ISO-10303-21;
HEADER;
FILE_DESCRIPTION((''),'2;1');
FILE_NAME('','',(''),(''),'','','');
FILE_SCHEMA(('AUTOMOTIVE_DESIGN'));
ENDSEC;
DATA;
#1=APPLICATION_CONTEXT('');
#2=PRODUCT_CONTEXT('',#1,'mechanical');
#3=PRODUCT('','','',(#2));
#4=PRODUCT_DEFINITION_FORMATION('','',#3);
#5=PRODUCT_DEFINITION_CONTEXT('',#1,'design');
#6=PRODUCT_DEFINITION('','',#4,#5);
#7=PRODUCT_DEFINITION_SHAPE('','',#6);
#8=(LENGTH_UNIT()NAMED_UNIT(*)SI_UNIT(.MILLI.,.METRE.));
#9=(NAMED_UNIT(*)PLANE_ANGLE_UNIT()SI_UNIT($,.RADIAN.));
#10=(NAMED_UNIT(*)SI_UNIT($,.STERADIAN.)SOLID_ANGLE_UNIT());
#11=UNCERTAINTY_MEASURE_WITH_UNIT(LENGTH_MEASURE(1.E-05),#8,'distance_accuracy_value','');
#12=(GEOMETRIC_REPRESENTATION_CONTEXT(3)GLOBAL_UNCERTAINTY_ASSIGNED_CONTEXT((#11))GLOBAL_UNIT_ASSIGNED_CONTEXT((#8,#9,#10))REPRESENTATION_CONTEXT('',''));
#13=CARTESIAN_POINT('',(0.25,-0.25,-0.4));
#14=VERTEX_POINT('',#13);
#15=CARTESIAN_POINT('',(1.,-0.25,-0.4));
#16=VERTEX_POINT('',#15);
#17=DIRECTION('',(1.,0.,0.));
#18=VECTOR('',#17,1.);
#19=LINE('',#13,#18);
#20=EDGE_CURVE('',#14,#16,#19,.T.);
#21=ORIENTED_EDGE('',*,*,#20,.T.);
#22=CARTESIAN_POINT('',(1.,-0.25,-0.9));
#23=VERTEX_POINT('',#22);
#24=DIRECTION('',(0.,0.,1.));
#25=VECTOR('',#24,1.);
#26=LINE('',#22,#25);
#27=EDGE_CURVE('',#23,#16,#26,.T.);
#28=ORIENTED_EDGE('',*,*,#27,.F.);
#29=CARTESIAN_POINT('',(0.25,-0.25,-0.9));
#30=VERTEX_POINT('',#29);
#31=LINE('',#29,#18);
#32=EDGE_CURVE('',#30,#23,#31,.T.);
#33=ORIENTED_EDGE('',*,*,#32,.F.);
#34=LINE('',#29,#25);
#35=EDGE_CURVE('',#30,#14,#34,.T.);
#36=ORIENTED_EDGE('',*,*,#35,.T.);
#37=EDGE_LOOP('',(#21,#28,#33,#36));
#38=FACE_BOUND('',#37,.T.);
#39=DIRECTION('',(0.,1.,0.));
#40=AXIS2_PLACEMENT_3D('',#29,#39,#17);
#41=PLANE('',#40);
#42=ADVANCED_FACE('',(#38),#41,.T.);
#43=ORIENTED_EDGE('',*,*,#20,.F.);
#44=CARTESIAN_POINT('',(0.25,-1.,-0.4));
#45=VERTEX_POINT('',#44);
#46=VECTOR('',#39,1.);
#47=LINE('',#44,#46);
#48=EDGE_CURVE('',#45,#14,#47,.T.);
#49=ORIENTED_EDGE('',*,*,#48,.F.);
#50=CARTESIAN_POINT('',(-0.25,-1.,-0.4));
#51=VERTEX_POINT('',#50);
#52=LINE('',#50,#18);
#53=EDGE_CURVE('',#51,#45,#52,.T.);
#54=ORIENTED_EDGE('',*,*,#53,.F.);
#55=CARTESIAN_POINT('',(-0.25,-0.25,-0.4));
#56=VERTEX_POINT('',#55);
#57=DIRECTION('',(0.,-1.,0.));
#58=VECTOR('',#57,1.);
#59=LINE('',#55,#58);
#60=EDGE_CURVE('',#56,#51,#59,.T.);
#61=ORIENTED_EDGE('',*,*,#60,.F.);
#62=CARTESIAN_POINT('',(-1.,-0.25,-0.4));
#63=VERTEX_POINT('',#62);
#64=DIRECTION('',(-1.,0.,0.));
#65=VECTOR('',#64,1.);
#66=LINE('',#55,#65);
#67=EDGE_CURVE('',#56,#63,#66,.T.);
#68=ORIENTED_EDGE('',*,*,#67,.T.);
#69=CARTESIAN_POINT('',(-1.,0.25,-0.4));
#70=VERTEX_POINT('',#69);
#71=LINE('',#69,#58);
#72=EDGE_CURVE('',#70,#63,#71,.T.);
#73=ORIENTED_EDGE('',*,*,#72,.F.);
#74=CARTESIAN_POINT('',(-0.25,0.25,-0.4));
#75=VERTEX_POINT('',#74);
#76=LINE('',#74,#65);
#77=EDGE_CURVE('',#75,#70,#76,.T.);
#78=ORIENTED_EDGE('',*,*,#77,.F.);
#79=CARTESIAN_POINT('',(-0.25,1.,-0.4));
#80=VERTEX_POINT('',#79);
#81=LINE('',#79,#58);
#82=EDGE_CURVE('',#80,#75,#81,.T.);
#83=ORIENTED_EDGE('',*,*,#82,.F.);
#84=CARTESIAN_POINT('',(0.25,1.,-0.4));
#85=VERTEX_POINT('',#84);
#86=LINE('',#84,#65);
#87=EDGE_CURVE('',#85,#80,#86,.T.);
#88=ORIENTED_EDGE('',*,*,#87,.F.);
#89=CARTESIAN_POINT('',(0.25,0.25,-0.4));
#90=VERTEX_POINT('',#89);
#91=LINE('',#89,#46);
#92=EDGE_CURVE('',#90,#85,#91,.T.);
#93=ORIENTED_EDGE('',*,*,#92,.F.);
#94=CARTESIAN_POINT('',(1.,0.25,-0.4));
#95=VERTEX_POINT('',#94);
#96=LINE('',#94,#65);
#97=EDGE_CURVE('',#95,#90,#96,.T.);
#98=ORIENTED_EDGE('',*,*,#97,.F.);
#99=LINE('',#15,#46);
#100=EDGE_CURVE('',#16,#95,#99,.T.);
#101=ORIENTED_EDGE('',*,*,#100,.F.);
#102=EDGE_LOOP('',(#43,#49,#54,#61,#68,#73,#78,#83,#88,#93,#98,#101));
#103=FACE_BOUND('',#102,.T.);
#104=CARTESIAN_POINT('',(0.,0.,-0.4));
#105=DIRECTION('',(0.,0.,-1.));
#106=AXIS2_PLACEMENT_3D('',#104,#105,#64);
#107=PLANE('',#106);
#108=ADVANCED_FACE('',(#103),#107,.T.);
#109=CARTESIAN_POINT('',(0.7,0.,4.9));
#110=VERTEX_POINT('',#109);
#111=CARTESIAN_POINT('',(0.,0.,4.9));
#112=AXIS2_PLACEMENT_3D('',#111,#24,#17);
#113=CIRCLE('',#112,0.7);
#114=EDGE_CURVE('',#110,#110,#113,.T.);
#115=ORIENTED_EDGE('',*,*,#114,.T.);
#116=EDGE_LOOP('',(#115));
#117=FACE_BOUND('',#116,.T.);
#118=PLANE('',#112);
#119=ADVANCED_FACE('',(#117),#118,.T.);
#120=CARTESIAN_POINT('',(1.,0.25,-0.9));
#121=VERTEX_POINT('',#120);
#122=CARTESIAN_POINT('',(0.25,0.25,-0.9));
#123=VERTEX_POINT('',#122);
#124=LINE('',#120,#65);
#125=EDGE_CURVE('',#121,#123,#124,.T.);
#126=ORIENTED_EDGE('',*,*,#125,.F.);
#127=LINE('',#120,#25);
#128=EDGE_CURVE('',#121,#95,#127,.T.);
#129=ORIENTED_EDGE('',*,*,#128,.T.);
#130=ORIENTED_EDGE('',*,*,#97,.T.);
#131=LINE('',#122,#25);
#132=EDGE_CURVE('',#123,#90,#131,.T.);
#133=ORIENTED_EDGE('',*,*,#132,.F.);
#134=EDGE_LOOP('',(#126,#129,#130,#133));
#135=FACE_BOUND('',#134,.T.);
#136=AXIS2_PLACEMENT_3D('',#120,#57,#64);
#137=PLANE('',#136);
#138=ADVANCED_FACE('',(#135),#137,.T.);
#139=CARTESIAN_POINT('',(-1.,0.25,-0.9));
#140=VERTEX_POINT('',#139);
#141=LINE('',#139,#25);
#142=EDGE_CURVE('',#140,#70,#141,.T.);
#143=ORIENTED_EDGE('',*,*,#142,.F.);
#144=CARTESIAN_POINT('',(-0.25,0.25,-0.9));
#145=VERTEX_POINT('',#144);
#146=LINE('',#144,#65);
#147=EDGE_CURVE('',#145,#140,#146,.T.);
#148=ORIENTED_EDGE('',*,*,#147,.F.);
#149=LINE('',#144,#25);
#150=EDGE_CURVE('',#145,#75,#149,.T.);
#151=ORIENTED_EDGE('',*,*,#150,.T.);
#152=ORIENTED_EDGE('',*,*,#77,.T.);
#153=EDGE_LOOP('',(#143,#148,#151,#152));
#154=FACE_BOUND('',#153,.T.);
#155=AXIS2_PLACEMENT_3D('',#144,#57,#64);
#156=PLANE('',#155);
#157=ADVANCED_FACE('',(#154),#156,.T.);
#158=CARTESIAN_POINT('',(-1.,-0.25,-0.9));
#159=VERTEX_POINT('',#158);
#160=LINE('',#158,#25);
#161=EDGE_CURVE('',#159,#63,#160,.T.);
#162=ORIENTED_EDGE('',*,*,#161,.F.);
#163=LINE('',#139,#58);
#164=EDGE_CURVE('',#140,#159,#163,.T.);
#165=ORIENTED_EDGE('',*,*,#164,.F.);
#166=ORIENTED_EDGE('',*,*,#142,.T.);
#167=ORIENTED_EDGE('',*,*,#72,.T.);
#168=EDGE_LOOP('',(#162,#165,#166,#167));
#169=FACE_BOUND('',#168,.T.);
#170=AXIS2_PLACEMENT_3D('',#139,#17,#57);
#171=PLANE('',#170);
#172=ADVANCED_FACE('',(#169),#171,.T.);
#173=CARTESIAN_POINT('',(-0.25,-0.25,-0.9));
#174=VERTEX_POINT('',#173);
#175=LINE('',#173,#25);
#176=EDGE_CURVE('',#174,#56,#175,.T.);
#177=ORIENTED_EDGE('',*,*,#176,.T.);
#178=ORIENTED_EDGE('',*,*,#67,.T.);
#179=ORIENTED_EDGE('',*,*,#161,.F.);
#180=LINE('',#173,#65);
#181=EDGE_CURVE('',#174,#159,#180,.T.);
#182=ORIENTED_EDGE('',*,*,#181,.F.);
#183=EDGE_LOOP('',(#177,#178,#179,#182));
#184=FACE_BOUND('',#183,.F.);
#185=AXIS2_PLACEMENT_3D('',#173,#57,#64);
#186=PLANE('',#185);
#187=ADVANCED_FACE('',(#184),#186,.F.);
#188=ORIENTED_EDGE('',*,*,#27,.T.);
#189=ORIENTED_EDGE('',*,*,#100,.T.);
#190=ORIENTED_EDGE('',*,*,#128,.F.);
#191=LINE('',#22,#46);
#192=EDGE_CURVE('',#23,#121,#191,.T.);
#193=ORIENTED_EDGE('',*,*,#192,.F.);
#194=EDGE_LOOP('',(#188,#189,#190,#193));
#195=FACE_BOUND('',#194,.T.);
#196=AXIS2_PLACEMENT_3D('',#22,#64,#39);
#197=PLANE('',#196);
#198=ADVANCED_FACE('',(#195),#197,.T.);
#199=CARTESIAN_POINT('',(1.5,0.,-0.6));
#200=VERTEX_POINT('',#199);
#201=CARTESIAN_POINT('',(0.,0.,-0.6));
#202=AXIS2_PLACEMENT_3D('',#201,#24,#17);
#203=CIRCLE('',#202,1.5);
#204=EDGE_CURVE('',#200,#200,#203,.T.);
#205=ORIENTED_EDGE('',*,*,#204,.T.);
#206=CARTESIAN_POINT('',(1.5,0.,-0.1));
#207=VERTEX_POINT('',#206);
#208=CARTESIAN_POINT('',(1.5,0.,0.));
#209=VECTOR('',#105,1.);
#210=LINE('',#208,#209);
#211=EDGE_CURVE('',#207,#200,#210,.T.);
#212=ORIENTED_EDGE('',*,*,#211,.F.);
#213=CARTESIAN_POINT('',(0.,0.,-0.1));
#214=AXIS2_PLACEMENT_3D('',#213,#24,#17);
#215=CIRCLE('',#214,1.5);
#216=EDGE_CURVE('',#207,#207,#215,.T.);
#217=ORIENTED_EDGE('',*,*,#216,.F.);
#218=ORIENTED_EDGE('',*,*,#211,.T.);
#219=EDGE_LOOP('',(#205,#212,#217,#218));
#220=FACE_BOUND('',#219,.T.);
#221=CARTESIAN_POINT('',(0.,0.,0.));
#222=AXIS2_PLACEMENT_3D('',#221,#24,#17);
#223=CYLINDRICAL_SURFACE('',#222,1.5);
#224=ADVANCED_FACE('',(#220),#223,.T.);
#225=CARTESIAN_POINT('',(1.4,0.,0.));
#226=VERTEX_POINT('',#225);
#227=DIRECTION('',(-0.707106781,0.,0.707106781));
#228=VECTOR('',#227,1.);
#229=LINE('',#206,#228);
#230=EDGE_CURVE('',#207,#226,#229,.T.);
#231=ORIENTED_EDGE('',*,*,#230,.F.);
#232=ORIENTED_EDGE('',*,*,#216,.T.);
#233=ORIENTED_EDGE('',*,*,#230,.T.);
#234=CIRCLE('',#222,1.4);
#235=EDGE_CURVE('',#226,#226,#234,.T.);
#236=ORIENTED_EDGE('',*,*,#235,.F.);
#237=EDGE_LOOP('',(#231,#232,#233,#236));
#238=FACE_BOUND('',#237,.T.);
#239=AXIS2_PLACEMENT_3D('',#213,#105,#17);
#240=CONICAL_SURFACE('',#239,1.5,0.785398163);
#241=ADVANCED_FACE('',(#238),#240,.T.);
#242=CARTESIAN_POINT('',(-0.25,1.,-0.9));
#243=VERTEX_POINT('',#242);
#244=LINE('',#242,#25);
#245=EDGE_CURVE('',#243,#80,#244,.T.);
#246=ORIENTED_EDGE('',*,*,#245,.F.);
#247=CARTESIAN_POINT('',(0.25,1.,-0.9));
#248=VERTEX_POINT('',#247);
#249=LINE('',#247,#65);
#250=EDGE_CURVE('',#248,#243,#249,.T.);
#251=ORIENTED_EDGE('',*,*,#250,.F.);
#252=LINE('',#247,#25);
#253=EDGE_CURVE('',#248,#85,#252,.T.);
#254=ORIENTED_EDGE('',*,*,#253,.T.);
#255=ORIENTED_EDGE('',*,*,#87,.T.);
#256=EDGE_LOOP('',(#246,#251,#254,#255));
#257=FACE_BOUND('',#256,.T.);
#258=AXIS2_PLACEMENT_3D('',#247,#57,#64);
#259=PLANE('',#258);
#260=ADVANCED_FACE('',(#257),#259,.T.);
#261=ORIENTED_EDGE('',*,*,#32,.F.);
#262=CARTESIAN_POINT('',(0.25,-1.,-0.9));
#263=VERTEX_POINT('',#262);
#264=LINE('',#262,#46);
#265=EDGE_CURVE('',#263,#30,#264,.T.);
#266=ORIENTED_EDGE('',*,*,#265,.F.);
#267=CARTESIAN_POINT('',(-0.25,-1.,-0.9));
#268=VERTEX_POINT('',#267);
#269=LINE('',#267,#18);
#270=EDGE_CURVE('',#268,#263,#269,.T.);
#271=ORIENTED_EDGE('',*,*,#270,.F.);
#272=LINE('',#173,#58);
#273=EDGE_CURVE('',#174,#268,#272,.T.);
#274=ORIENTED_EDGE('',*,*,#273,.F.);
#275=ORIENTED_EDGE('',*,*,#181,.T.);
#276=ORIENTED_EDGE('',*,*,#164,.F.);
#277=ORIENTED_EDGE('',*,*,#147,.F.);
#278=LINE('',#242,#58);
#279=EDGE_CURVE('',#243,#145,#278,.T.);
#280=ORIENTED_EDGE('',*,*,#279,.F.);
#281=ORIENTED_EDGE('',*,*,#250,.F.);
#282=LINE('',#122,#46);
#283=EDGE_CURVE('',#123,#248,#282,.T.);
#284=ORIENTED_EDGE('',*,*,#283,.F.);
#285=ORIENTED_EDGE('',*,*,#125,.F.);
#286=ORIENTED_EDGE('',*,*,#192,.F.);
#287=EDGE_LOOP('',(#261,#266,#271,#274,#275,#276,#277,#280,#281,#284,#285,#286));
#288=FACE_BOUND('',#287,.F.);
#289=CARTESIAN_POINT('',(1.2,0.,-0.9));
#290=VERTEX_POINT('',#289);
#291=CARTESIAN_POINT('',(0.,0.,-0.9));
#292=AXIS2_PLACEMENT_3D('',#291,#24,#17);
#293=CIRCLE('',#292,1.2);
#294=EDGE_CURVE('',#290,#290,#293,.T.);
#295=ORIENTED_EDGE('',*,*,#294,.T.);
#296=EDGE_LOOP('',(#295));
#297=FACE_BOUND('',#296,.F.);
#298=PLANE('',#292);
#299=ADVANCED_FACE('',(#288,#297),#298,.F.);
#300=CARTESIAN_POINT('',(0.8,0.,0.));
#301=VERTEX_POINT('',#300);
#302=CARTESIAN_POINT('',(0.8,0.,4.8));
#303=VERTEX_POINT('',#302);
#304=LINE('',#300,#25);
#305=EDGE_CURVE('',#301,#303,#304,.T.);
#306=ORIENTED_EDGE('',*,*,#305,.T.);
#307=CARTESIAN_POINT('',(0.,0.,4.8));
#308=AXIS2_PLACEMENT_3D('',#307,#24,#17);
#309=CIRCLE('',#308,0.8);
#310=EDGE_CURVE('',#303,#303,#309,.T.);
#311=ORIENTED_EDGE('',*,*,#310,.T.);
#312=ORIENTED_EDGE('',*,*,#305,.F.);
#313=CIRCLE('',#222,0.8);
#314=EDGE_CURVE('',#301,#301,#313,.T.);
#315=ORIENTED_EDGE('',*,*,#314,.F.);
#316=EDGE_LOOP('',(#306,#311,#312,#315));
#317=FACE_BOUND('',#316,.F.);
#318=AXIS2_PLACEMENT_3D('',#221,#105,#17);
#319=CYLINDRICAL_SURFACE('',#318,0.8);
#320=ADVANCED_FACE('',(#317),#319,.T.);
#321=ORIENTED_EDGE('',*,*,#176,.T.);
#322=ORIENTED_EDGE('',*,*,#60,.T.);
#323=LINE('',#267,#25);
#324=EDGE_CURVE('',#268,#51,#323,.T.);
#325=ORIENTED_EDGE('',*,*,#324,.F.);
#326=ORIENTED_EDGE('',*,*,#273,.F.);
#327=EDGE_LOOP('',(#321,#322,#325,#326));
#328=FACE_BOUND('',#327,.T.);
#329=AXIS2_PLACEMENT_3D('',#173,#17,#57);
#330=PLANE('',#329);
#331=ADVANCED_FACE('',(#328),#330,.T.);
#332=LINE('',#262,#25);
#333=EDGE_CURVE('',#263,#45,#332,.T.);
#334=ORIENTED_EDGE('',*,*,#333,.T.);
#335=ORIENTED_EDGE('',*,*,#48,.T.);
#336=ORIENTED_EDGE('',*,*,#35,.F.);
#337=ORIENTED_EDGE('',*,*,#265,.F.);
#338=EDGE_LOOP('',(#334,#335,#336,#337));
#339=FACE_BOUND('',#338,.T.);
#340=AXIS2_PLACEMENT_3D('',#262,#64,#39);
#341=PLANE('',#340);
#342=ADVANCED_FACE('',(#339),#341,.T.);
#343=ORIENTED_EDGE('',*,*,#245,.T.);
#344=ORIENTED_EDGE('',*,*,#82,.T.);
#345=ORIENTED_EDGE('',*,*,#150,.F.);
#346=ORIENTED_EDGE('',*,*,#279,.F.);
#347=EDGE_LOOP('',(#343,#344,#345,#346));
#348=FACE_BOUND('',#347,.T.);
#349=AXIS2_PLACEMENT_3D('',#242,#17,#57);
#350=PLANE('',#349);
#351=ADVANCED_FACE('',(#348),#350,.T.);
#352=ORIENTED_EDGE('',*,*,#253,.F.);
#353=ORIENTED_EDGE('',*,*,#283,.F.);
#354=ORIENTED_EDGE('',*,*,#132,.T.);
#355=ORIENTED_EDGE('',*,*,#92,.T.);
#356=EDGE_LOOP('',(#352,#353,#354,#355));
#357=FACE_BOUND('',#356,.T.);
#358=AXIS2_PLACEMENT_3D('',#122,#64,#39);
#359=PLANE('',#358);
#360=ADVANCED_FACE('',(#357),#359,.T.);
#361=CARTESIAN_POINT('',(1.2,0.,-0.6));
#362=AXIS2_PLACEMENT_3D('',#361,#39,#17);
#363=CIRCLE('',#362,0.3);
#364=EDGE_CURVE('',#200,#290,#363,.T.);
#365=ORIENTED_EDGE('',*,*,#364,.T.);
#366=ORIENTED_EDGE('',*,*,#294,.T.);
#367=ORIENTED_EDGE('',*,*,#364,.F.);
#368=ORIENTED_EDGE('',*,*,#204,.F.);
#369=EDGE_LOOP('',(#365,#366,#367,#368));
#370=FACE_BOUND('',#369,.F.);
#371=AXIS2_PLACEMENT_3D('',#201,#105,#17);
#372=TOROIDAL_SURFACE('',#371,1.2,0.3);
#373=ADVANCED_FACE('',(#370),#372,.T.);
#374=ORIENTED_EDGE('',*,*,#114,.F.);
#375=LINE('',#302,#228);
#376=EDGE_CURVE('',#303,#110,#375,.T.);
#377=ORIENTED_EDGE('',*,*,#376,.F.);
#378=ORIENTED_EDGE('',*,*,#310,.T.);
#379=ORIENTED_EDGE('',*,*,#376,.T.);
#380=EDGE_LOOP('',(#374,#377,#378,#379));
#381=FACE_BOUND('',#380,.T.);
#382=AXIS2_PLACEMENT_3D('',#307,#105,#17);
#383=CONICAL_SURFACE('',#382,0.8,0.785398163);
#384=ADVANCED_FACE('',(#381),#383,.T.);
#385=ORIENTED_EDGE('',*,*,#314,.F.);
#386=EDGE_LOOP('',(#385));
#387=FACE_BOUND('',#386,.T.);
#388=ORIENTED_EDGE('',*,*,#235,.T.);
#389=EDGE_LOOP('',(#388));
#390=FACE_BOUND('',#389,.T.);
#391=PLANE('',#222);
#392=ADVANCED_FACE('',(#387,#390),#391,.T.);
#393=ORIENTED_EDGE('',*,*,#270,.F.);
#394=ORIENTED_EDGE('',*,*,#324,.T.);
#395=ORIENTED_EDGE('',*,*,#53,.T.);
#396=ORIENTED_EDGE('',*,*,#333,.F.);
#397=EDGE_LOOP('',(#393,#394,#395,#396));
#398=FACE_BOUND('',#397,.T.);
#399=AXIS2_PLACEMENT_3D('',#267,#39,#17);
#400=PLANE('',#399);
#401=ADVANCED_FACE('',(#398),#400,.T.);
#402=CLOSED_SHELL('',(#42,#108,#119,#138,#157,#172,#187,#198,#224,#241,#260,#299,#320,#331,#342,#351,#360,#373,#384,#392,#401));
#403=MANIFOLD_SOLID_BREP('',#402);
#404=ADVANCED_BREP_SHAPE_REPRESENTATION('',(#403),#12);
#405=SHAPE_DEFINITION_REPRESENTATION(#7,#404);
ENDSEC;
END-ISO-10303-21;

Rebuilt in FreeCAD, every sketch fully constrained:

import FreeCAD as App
import Part
import Sketcher
from FreeCAD import Vector


def edges_at(feature, points):
    """Names of the edges that pass closest to the given points."""
    edges = feature.Shape.Edges
    near = lambda p: min(range(len(edges)), key=lambda i: edges[i].distToShape(Part.Vertex(*p))[0])
    return sorted({f"Edge{near(p) + 1}" for p in points})

doc = App.newDocument("Part")
params = doc.addObject("Spreadsheet::Sheet", "Params")
for row, (alias, value) in enumerate([
    ("sketch1_diameter", "3 mm"),
    ("pad1_length", "0.9 mm"),
    ("sketch2_diameter", "1.6 mm"),
    ("pad2_length", "4.9 mm"),
    ("fillet_radius", "0.3 mm"),
    ("sketch3_width", "0.5 mm"),
    ("pocket1_length", "0.5 mm"),
    ("chamfer_size", "0.1 mm"),
], start=1):
    params.set(f"A{row}", alias)
    params.set(f"B{row}", "=" + value)
    params.setAlias(f"B{row}", alias)

body = doc.addObject("PartDesign::Body", "Body")

# Sketch on XY plane
sketch1 = body.newObject("Sketcher::SketchObject", "Sketch")
sketch1.AttachmentSupport = (doc.getObject("XY_Plane"), [""])
sketch1.MapMode = "FlatFace"
sketch1.addGeometry(Part.Circle(Vector(0, 0, 0), Vector(0, 0, 1), 1.5), False)
sketch1.addConstraint(Sketcher.Constraint("Coincident", 0, 3, -1, 1))
sketch1.addConstraint(Sketcher.Constraint("Diameter", 0, 3.0))
sketch1.setExpression("Constraints[1]", "Params.sketch1_diameter")
pad1 = body.newObject("PartDesign::Pad", "Pad")
pad1.Profile = sketch1
pad1.setExpression("Length", "Params.pad1_length")
pad1.Reversed = True

# Sketch on XY plane
sketch2 = body.newObject("Sketcher::SketchObject", "Sketch001")
sketch2.AttachmentSupport = (doc.getObject("XY_Plane"), [""])
sketch2.MapMode = "FlatFace"
sketch2.addGeometry(Part.Circle(Vector(0, 0, 0), Vector(0, 0, 1), 0.8), False)
sketch2.addConstraint(Sketcher.Constraint("Coincident", 0, 3, -1, 1))
sketch2.addConstraint(Sketcher.Constraint("Diameter", 0, 1.6))
sketch2.setExpression("Constraints[1]", "Params.sketch2_diameter")
pad2 = body.newObject("PartDesign::Pad", "Pad001")
pad2.Profile = sketch2
pad2.setExpression("Length", "Params.pad2_length")
doc.recompute()

fillet = body.newObject("PartDesign::Fillet", "Fillet")
fillet.Base = (pad2, edges_at(pad2, [(-1.5, 0, -0.9)]))
fillet.setExpression("Radius", "Params.fillet_radius")

# Sketch on XY plane
sketch3 = body.newObject("Sketcher::SketchObject", "Sketch002")
sketch3.AttachmentSupport = (doc.getObject("XY_Plane"), [""])
sketch3.MapMode = "FlatFace"
sketch3.AttachmentOffset = App.Placement(Vector(0, 0, -0.9), App.Rotation())
sketch3.addGeometry(Part.LineSegment(Vector(0.2, 1, 0), Vector(0.2, 0.2, 0)), False)
sketch3.addGeometry(Part.LineSegment(Vector(0.2, 0.2, 0), Vector(1, 0.2, 0)), False)
sketch3.addGeometry(Part.LineSegment(Vector(1, 0.2, 0), Vector(1, -0.2, 0)), False)
sketch3.addGeometry(Part.LineSegment(Vector(1, -0.2, 0), Vector(0.2, -0.2, 0)), False)
sketch3.addGeometry(Part.LineSegment(Vector(0.2, -0.2, 0), Vector(0.2, -1, 0)), False)
sketch3.addGeometry(Part.LineSegment(Vector(0.2, -1, 0), Vector(-0.2, -1, 0)), False)
sketch3.addGeometry(Part.LineSegment(Vector(-0.2, -1, 0), Vector(-0.2, -0.2, 0)), False)
sketch3.addGeometry(Part.LineSegment(Vector(-0.2, -0.2, 0), Vector(-1, -0.2, 0)), False)
sketch3.addGeometry(Part.LineSegment(Vector(-1, -0.2, 0), Vector(-1, 0.2, 0)), False)
sketch3.addGeometry(Part.LineSegment(Vector(-1, 0.2, 0), Vector(-0.2, 0.2, 0)), False)
sketch3.addGeometry(Part.LineSegment(Vector(-0.2, 0.2, 0), Vector(-0.2, 1, 0)), False)
sketch3.addGeometry(Part.LineSegment(Vector(-0.2, 1, 0), Vector(0.2, 1, 0)), False)
sketch3.addConstraint(Sketcher.Constraint("Coincident", 0, 2, 1, 1))
sketch3.addConstraint(Sketcher.Constraint("Coincident", 1, 2, 2, 1))
sketch3.addConstraint(Sketcher.Constraint("Coincident", 2, 2, 3, 1))
sketch3.addConstraint(Sketcher.Constraint("Coincident", 3, 2, 4, 1))
sketch3.addConstraint(Sketcher.Constraint("Coincident", 4, 2, 5, 1))
sketch3.addConstraint(Sketcher.Constraint("Coincident", 5, 2, 6, 1))
sketch3.addConstraint(Sketcher.Constraint("Coincident", 6, 2, 7, 1))
sketch3.addConstraint(Sketcher.Constraint("Coincident", 7, 2, 8, 1))
sketch3.addConstraint(Sketcher.Constraint("Coincident", 8, 2, 9, 1))
sketch3.addConstraint(Sketcher.Constraint("Coincident", 9, 2, 10, 1))
sketch3.addConstraint(Sketcher.Constraint("Coincident", 10, 2, 11, 1))
sketch3.addConstraint(Sketcher.Constraint("Coincident", 11, 2, 0, 1))
sketch3.addConstraint(Sketcher.Constraint("Vertical", 0))
sketch3.addConstraint(Sketcher.Constraint("Horizontal", 1))
sketch3.addConstraint(Sketcher.Constraint("Vertical", 2))
sketch3.addConstraint(Sketcher.Constraint("Horizontal", 3))
sketch3.addConstraint(Sketcher.Constraint("Vertical", 4))
sketch3.addConstraint(Sketcher.Constraint("Horizontal", 5))
sketch3.addConstraint(Sketcher.Constraint("Vertical", 6))
sketch3.addConstraint(Sketcher.Constraint("Horizontal", 7))
sketch3.addConstraint(Sketcher.Constraint("Vertical", 8))
sketch3.addConstraint(Sketcher.Constraint("Horizontal", 9))
sketch3.addConstraint(Sketcher.Constraint("Vertical", 10))
sketch3.addConstraint(Sketcher.Constraint("Horizontal", 11))
sketch3.addConstraint(Sketcher.Constraint("Symmetric", 0, 2, 6, 2, -1, 1))
sketch3.addConstraint(Sketcher.Constraint("Symmetric", 2, 2, 8, 2, -1, 1))
sketch3.addConstraint(Sketcher.Constraint("Symmetric", 4, 2, 10, 2, -1, 1))
sketch3.addConstraint(Sketcher.Constraint("Symmetric", 3, 2, 6, 2, -2))
sketch3.addConstraint(Sketcher.Constraint("Equal", 9, 0))
sketch3.addConstraint(Sketcher.Constraint("Equal", 11, 2))
sketch3.addConstraint(Sketcher.Constraint("DistanceX", 5, 2, 5, 1, 0.5))
sketch3.addConstraint(Sketcher.Constraint("DistanceX", -1, 1, 1, 2, 1.0))
sketch3.setExpression("Constraints[30]", "Params.sketch3_width")
pocket1 = body.newObject("PartDesign::Pocket", "Pocket")
pocket1.Profile = sketch3
pocket1.setExpression("Length", "Params.pocket1_length")
pocket1.Reversed = True
doc.recompute()

chamfer = body.newObject("PartDesign::Chamfer", "Chamfer")
chamfer.Base = (pocket1, edges_at(pocket1, [(-1.5, 0, 0), (-0.8, 0, 4.9)]))
chamfer.setExpression("Size", "Params.chamfer_size")

doc.recompute()
